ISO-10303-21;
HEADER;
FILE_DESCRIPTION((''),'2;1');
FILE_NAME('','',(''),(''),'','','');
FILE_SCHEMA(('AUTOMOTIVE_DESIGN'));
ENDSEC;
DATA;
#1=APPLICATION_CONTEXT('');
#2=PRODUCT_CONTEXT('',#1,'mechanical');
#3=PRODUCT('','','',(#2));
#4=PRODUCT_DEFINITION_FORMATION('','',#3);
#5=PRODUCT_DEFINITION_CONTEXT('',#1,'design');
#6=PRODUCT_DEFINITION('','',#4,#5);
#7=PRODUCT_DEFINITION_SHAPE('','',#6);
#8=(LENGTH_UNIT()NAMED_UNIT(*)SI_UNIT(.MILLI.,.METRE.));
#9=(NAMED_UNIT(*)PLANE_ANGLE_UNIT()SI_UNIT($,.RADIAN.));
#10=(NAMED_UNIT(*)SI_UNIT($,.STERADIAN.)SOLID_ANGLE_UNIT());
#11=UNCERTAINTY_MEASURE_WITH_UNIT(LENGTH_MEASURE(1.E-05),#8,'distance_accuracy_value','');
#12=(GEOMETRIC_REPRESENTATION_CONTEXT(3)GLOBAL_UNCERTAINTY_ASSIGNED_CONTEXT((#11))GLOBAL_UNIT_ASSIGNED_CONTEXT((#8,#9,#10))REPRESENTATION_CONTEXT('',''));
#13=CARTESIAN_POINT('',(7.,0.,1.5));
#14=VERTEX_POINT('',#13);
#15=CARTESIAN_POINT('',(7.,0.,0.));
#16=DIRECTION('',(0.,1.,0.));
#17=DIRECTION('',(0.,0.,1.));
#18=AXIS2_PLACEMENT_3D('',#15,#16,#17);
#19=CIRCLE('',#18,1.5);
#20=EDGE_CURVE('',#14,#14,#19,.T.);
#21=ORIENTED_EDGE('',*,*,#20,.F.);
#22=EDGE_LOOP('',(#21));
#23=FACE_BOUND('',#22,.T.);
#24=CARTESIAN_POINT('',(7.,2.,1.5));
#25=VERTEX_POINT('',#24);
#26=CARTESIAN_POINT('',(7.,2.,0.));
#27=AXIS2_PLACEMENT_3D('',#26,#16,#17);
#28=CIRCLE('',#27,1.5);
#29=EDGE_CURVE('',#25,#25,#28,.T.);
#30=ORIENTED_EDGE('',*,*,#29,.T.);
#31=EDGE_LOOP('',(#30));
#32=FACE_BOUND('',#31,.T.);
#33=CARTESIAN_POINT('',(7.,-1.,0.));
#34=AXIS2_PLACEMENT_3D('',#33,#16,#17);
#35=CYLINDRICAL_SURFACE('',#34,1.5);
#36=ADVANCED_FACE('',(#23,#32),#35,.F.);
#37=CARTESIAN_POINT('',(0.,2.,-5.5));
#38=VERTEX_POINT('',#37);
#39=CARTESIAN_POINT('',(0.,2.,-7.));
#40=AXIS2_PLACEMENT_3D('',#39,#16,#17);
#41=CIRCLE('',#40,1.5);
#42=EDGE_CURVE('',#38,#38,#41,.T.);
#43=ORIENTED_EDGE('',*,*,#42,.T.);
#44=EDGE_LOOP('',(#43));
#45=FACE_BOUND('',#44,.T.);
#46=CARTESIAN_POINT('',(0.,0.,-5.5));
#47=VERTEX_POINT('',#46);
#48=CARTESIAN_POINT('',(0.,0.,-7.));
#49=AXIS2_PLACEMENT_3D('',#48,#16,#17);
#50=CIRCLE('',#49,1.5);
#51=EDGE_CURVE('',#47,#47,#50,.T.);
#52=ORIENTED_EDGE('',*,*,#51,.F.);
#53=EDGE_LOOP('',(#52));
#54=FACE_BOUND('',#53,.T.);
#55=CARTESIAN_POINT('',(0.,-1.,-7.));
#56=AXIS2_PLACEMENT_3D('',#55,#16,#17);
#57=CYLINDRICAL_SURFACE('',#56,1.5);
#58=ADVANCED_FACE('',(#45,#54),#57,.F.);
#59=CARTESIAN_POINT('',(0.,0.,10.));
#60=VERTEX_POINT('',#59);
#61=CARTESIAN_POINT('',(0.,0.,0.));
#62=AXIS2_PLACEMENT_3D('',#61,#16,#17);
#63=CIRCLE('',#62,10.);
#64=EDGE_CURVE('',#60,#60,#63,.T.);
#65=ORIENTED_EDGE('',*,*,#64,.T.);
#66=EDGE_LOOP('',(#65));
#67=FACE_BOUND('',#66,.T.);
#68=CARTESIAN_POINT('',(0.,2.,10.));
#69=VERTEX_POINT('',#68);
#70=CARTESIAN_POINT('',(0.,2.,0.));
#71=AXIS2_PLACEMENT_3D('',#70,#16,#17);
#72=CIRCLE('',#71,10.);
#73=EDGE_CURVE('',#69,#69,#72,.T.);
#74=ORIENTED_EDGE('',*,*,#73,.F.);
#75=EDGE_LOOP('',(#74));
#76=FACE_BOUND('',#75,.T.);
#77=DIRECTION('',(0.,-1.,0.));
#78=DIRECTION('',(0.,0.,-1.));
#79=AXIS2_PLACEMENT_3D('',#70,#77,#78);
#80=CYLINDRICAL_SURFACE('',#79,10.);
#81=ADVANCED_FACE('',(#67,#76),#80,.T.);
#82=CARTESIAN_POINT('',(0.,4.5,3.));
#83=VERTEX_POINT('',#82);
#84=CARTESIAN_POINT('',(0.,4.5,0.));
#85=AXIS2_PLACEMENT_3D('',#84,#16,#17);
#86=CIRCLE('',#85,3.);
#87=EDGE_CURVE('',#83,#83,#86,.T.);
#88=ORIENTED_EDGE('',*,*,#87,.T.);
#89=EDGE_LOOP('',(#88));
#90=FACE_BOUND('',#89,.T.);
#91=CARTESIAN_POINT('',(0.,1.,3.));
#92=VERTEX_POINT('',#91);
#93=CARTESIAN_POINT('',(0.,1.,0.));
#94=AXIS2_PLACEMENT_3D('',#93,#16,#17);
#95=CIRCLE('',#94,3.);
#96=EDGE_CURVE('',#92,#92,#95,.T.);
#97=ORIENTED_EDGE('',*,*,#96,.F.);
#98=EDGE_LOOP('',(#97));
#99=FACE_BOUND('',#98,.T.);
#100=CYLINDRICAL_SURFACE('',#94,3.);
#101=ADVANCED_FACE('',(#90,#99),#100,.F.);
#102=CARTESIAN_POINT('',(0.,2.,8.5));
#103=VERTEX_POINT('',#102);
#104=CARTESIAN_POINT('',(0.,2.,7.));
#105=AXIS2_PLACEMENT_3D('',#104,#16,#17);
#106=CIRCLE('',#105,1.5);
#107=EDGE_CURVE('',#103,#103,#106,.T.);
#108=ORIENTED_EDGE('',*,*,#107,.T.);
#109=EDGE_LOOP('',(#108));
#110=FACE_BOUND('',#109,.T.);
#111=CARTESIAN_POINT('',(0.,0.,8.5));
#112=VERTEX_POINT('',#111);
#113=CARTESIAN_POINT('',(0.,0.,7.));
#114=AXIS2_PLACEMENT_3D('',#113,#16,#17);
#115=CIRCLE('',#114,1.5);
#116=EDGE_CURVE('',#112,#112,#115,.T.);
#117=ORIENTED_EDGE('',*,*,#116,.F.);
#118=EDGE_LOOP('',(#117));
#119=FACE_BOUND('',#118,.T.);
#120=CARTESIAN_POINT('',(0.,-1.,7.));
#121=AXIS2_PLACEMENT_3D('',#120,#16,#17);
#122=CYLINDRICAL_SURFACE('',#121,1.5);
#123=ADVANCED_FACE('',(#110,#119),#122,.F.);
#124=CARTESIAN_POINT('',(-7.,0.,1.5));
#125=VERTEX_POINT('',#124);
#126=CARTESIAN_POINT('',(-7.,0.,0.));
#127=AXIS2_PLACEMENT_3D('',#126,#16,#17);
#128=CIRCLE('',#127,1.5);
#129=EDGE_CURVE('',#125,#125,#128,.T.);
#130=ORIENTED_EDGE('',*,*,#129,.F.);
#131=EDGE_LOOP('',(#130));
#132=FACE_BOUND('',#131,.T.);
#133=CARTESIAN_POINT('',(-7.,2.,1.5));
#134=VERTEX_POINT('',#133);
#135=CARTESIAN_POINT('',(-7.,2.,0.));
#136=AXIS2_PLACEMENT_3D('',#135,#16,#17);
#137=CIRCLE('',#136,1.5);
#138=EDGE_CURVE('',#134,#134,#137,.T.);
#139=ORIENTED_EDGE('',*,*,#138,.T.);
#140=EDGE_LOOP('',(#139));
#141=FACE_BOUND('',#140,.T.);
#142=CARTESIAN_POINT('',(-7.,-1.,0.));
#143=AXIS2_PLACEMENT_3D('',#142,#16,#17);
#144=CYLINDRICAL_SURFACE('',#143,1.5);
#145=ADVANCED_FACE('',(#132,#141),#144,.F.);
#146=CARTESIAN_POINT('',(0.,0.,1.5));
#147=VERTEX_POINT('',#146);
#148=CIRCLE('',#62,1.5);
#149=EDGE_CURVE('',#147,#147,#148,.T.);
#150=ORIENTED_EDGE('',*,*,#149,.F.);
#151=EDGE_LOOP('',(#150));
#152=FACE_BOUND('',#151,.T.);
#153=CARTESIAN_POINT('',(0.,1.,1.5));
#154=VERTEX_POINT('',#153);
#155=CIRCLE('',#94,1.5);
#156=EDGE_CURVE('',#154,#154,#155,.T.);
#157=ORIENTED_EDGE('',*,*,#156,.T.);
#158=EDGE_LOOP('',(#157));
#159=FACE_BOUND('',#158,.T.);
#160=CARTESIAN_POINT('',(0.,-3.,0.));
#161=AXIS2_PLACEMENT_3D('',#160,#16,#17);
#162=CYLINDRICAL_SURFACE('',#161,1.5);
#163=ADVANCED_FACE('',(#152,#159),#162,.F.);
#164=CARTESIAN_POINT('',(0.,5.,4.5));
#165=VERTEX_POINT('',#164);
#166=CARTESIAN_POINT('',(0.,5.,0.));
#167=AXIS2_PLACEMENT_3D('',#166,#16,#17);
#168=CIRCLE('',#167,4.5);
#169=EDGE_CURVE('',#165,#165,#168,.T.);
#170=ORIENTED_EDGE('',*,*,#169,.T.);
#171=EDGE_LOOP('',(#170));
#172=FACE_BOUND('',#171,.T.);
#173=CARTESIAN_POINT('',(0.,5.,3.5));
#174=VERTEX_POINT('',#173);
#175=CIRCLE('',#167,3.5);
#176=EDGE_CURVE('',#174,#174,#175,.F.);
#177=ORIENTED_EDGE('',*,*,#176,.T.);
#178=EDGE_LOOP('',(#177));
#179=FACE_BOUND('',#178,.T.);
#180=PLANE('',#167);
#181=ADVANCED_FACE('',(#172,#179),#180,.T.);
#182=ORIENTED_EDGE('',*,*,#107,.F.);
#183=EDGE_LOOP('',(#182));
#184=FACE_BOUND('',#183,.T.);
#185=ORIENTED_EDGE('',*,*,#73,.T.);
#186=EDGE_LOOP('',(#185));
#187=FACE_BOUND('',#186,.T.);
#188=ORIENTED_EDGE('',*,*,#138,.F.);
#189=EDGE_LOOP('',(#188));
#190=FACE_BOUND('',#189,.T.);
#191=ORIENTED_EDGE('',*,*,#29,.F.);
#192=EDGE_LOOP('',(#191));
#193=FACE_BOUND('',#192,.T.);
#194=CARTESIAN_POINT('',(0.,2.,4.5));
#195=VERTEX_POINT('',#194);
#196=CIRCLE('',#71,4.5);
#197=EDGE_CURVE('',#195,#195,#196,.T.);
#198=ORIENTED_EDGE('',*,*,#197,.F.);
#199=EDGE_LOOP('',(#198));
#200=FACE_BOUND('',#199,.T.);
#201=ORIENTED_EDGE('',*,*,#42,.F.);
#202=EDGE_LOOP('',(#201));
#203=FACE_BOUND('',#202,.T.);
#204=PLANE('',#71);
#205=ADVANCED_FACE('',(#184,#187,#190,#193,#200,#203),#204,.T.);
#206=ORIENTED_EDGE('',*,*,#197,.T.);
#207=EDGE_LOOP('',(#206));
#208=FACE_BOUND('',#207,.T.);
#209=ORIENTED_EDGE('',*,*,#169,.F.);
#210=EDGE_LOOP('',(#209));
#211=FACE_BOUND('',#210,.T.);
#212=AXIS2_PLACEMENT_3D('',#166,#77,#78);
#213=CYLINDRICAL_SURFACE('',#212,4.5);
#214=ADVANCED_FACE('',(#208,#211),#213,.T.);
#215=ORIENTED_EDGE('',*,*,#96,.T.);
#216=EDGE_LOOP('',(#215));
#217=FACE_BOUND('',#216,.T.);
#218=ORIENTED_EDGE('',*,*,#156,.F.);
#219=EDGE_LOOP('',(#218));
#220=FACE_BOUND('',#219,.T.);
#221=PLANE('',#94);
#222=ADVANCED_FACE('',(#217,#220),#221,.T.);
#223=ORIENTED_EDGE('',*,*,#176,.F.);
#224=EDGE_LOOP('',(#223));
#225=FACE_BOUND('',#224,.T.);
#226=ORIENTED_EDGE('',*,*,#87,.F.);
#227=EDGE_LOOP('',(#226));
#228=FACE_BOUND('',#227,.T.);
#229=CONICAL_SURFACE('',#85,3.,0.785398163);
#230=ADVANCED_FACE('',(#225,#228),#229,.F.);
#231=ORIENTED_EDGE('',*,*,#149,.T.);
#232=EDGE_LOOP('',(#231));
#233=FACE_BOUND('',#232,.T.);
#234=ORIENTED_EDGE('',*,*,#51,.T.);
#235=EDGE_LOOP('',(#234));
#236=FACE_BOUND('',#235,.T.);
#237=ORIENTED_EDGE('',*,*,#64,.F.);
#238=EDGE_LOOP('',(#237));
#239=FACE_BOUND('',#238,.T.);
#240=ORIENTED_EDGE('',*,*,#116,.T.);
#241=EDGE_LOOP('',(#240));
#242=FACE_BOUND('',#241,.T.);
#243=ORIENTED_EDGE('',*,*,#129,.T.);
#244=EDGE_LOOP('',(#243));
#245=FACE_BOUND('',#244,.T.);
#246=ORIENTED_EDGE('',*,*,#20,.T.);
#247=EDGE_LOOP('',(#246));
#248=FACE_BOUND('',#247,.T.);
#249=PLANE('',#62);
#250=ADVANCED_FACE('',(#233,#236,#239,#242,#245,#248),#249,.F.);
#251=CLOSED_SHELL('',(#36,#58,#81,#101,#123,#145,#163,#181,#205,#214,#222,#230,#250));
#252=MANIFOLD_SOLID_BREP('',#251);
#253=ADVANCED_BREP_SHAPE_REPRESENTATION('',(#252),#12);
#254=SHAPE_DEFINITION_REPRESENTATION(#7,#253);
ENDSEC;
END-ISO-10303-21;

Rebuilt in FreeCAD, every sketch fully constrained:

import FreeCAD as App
import Part
import Sketcher


def edges_at(feature, points):
    """Names of the edges that pass closest to the given points."""
    edges = feature.Shape.Edges
    near = lambda p: min(range(len(edges)), key=lambda i: edges[i].distToShape(Part.Vertex(*p))[0])
    return sorted({f"Edge{near(p) + 1}" for p in points})

doc = App.newDocument("Part")
body = doc.addObject("PartDesign::Body", "Body")

sketch1 = body.newObject("Sketcher::SketchObject", "Sketch")
sketch1.AttachmentSupport = (doc.getObject("XZ_Plane"), [""])
sketch1.MapMode = "FlatFace"
sketch1.addGeometry(Part.Circle(App.Vector(0, 0, 0), App.Vector(0, 0, 1), 10), False)
sketch1.addConstraint([
    Sketcher.Constraint("Coincident", 0, 3, -1, 1),
    Sketcher.Constraint("Diameter", 0, 20.0),
])
pad1 = body.newObject("PartDesign::Pad", "Pad")
pad1.Profile = sketch1
pad1.Length = 2
pad1.Reversed = True

sketch2 = body.newObject("Sketcher::SketchObject", "Sketch001")
sketch2.AttachmentSupport = (doc.getObject("XZ_Plane"), [""])
sketch2.MapMode = "FlatFace"
sketch2.AttachmentOffset = App.Placement(App.Vector(0, 0, -2), App.Rotation())
sketch2.addGeometry(Part.Circle(App.Vector(0, 0, 0), App.Vector(0, 0, 1), 4.5), False)
sketch2.addConstraint([
    Sketcher.Constraint("Coincident", 0, 3, -1, 1),
    Sketcher.Constraint("Diameter", 0, 9.0),
])
pad2 = body.newObject("PartDesign::Pad", "Pad001")
pad2.Profile = sketch2
pad2.Length = 3
pad2.Reversed = True

sketch3 = body.newObject("Sketcher::SketchObject", "Sketch002")
sketch3.AttachmentSupport = (doc.getObject("XZ_Plane"), [""])
sketch3.MapMode = "FlatFace"
sketch3.AttachmentOffset = App.Placement(App.Vector(0, 0, -2), App.Rotation())
sketch3.addGeometry([
    Part.Circle(App.Vector(-7, 0, 0), App.Vector(0, 0, 1), 1.5),
    Part.Circle(App.Vector(0, -7, 0), App.Vector(0, 0, 1), 1.5),
    Part.Circle(App.Vector(7, 0, 0), App.Vector(0, 0, 1), 1.5),
    Part.Circle(App.Vector(0, 7, 0), App.Vector(0, 0, 1), 1.5),
], False)
sketch3.addConstraint([
    Sketcher.Constraint("Equal", 0, 1),
    Sketcher.Constraint("Equal", 1, 2),
    Sketcher.Constraint("Equal", 2, 3),
    Sketcher.Constraint("Symmetric", 0, 3, 2, 3, -1, 1),
    Sketcher.Constraint("Symmetric", 1, 3, 3, 3, -1, 1),
    Sketcher.Constraint("PointOnObject", 0, 3, -1),
    Sketcher.Constraint("PointOnObject", 1, 3, -2),
    Sketcher.Constraint("Diameter", 0, 3.0),
    Sketcher.Constraint("DistanceX", 0, 3, -1, 1, 7.0),
    Sketcher.Constraint("DistanceY", 1, 3, -1, 1, 7.0),
])
pocket1 = body.newObject("PartDesign::Pocket", "Pocket")
pocket1.Profile = sketch3
pocket1.Length = 3
pocket1.Reversed = True

sketch4 = body.newObject("Sketcher::SketchObject", "Sketch003")
sketch4.AttachmentSupport = (doc.getObject("XZ_Plane"), [""])
sketch4.MapMode = "FlatFace"
sketch4.AttachmentOffset = App.Placement(App.Vector(0, 0, -5), App.Rotation())
sketch4.addGeometry(Part.Circle(App.Vector(0, 0, 0), App.Vector(0, 0, 1), 3), False)
sketch4.addConstraint([
    Sketcher.Constraint("Coincident", 0, 3, -1, 1),
    Sketcher.Constraint("Diameter", 0, 6.0),
])
pocket2 = body.newObject("PartDesign::Pocket", "Pocket001")
pocket2.Profile = sketch4
pocket2.Length = 4
pocket2.Reversed = True

sketch5 = body.newObject("Sketcher::SketchObject", "Sketch004")
sketch5.AttachmentSupport = (doc.getObject("XZ_Plane"), [""])
sketch5.MapMode = "FlatFace"
sketch5.AttachmentOffset = App.Placement(App.Vector(0, 0, -1), App.Rotation())
sketch5.addGeometry(Part.Circle(App.Vector(0, 0, 0), App.Vector(0, 0, 1), 1.5), False)
sketch5.addConstraint([
    Sketcher.Constraint("Coincident", 0, 3, -1, 1),
    Sketcher.Constraint("Diameter", 0, 3.0),
])
pocket3 = body.newObject("PartDesign::Pocket", "Pocket002")
pocket3.Profile = sketch5
pocket3.Length = 4
pocket3.Reversed = True
doc.recompute()

chamfer = body.newObject("PartDesign::Chamfer", "Chamfer")
chamfer.Base = (pocket3, edges_at(pocket3, [(0, 5, -3)]))
chamfer.Size = 0.5

doc.recompute()
